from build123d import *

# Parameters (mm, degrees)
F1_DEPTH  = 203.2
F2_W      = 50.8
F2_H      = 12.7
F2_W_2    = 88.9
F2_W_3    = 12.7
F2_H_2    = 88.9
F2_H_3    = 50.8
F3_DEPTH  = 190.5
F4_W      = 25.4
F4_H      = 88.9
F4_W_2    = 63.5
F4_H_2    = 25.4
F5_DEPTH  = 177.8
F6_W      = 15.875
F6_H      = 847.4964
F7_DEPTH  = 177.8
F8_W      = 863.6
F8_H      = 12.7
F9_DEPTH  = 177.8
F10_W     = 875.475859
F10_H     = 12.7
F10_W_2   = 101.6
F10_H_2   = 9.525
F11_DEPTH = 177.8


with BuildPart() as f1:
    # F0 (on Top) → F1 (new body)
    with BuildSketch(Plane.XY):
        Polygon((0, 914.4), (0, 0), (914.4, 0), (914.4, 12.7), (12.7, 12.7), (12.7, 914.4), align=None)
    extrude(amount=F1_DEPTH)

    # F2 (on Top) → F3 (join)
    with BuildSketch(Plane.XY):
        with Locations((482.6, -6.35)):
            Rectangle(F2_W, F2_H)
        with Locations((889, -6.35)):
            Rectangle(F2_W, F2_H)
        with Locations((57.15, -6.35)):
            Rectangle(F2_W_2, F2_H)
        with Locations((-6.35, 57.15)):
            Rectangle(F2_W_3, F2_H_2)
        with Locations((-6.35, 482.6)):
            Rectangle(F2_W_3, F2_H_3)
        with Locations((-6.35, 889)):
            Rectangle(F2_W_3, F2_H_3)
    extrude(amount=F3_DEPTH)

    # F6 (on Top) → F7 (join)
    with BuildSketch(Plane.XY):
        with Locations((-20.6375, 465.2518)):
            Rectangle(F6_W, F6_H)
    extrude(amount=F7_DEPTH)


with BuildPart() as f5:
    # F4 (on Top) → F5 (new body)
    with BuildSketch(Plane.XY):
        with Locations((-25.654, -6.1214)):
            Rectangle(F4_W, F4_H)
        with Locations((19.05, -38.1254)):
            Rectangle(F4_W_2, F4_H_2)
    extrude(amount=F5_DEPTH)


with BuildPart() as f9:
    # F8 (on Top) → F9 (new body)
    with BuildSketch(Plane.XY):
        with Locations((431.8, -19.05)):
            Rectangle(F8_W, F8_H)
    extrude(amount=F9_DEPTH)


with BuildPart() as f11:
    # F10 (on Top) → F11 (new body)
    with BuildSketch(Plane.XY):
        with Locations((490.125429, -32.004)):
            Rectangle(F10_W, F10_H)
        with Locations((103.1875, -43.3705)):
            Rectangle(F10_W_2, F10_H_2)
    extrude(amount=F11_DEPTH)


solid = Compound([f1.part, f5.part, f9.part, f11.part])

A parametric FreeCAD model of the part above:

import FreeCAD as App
import Part
import Sketcher
from FreeCAD import Vector
Q = App.Units.Quantity

doc = App.newDocument("Part")
body = doc.addObject("PartDesign::Body", "Body")

# Sketch on XY plane
sketch1 = body.newObject("Sketcher::SketchObject", "Sketch")
sketch1.AttachmentSupport = (doc.getObject("XY_Plane"), [""])
sketch1.MapMode = "FlatFace"
sketch1.addGeometry([
    Part.LineSegment(Vector(0, 914.4, 0), Vector(0, 0, 0)),  # 0
    Part.LineSegment(Vector(0, 0, 0), Vector(914.4, 0, 0)),  # 1
    Part.LineSegment(Vector(914.4, 0, 0), Vector(914.4, 12.7, 0)),  # 2
    Part.LineSegment(Vector(914.4, 12.7, 0), Vector(12.7, 12.7, 0)),  # 3
    Part.LineSegment(Vector(12.7, 12.7, 0), Vector(12.7, 914.4, 0)),  # 4
    Part.LineSegment(Vector(12.7, 914.4, 0), Vector(0, 914.4, 0)),  # 5
], False)
sketch1.addConstraint([
    Sketcher.Constraint("Coincident", 0, 2, 1, 1),
    Sketcher.Constraint("Coincident", 1, 2, 2, 1),
    Sketcher.Constraint("Coincident", 2, 2, 3, 1),
    Sketcher.Constraint("Coincident", 3, 2, 4, 1),
    Sketcher.Constraint("Coincident", 4, 2, 5, 1),
    Sketcher.Constraint("Coincident", 5, 2, 0, 1),
    Sketcher.Constraint("Vertical", 0),
    Sketcher.Constraint("Horizontal", 1),
    Sketcher.Constraint("Vertical", 2),
    Sketcher.Constraint("Horizontal", 3),
    Sketcher.Constraint("Vertical", 4),
    Sketcher.Constraint("Horizontal", 5),
    Sketcher.Constraint("Coincident", 0, 2, -1, 1),
    Sketcher.Constraint("Equal", 1, 0),
    Sketcher.Constraint("Equal", 5, 2),
    Sketcher.Constraint("DistanceX", 1, 1, 1, 2, Q("36 in")),
    Sketcher.Constraint("DistanceX", 3, 2, 3, 1, Q("35.5 in")),
])
pad1 = body.newObject("PartDesign::Pad", "Pad")
pad1.Profile = sketch1
pad1.Length = Q("8 in")

# Sketch on XY plane
sketch2 = body.newObject("Sketcher::SketchObject", "Sketch001")
sketch2.AttachmentSupport = (doc.getObject("XY_Plane"), [""])
sketch2.MapMode = "FlatFace"
sketch2.addGeometry([
    Part.LineSegment(Vector(457.2, 0, 0), Vector(457.2, -12.7, 0)),  # 0
    Part.LineSegment(Vector(457.2, -12.7, 0), Vector(508, -12.7, 0)),  # 1
    Part.LineSegment(Vector(508, -12.7, 0), Vector(508, 0, 0)),  # 2
    Part.LineSegment(Vector(508, 0, 0), Vector(457.2, 0, 0)),  # 3
    Part.LineSegment(Vector(863.6, 0, 0), Vector(863.6, -12.7, 0)),  # 4
    Part.LineSegment(Vector(863.6, -12.7, 0), Vector(914.4, -12.7, 0)),  # 5
    Part.LineSegment(Vector(914.4, -12.7, 0), Vector(914.4, 0, 0)),  # 6
    Part.LineSegment(Vector(914.4, 0, 0), Vector(863.6, 0, 0)),  # 7
    Part.LineSegment(Vector(12.7, 0, 0), Vector(12.7, -12.7, 0)),  # 8
    Part.LineSegment(Vector(12.7, -12.7, 0), Vector(101.6, -12.7, 0)),  # 9
    Part.LineSegment(Vector(101.6, -12.7, 0), Vector(101.6, 0, 0)),  # 10
    Part.LineSegment(Vector(101.6, 0, 0), Vector(12.7, 0, 0)),  # 11
    Part.LineSegment(Vector(-12.7, 101.6, 0), Vector(-12.7, 12.7, 0)),  # 12
    Part.LineSegment(Vector(-12.7, 12.7, 0), Vector(0, 12.7, 0)),  # 13
    Part.LineSegment(Vector(0, 12.7, 0), Vector(0, 101.6, 0)),  # 14
    Part.LineSegment(Vector(0, 101.6, 0), Vector(-12.7, 101.6, 0)),  # 15
    Part.LineSegment(Vector(-12.7, 508, 0), Vector(-12.7, 457.2, 0)),  # 16
    Part.LineSegment(Vector(-12.7, 457.2, 0), Vector(0, 457.2, 0)),  # 17
    Part.LineSegment(Vector(0, 457.2, 0), Vector(0, 508, 0)),  # 18
    Part.LineSegment(Vector(0, 508, 0), Vector(-12.7, 508, 0)),  # 19
    Part.LineSegment(Vector(-12.7, 914.4, 0), Vector(-12.7, 863.6, 0)),  # 20
    Part.LineSegment(Vector(-12.7, 863.6, 0), Vector(0, 863.6, 0)),  # 21
    Part.LineSegment(Vector(0, 863.6, 0), Vector(0, 914.4, 0)),  # 22
    Part.LineSegment(Vector(0, 914.4, 0), Vector(-12.7, 914.4, 0)),  # 23
], False)
sketch2.addConstraint([
    Sketcher.Constraint("Coincident", 0, 2, 1, 1),
    Sketcher.Constraint("Coincident", 1, 2, 2, 1),
    Sketcher.Constraint("Coincident", 2, 2, 3, 1),
    Sketcher.Constraint("Coincident", 3, 2, 0, 1),
    Sketcher.Constraint("Coincident", 4, 2, 5, 1),
    Sketcher.Constraint("Coincident", 5, 2, 6, 1),
    Sketcher.Constraint("Coincident", 6, 2, 7, 1),
    Sketcher.Constraint("Coincident", 7, 2, 4, 1),
    Sketcher.Constraint("Coincident", 8, 2, 9, 1),
    Sketcher.Constraint("Coincident", 9, 2, 10, 1),
    Sketcher.Constraint("Coincident", 10, 2, 11, 1),
    Sketcher.Constraint("Coincident", 11, 2, 8, 1),
    Sketcher.Constraint("Coincident", 12, 2, 13, 1),
    Sketcher.Constraint("Coincident", 13, 2, 14, 1),
    Sketcher.Constraint("Coincident", 14, 2, 15, 1),
    Sketcher.Constraint("Coincident", 15, 2, 12, 1),
    Sketcher.Constraint("Coincident", 16, 2, 17, 1),
    Sketcher.Constraint("Coincident", 17, 2, 18, 1),
    Sketcher.Constraint("Coincident", 18, 2, 19, 1),
    Sketcher.Constraint("Coincident", 19, 2, 16, 1),
    Sketcher.Constraint("Coincident", 20, 2, 21, 1),
    Sketcher.Constraint("Coincident", 21, 2, 22, 1),
    Sketcher.Constraint("Coincident", 22, 2, 23, 1),
    Sketcher.Constraint("Coincident", 23, 2, 20, 1),
    Sketcher.Constraint("Vertical", 0),
    Sketcher.Constraint("Horizontal", 1),
    Sketcher.Constraint("Vertical", 2),
    Sketcher.Constraint("Horizontal", 3),
    Sketcher.Constraint("Vertical", 4),
    Sketcher.Constraint("Horizontal", 5),
    Sketcher.Constraint("Vertical", 6),
    Sketcher.Constraint("Horizontal", 7),
    Sketcher.Constraint("Vertical", 8),
    Sketcher.Constraint("Horizontal", 9),
    Sketcher.Constraint("Vertical", 10),
    Sketcher.Constraint("Horizontal", 11),
    Sketcher.Constraint("Vertical", 12),
    Sketcher.Constraint("Horizontal", 13),
    Sketcher.Constraint("Vertical", 14),
    Sketcher.Constraint("Horizontal", 15),
    Sketcher.Constraint("Vertical", 16),
    Sketcher.Constraint("Horizontal", 17),
    Sketcher.Constraint("Vertical", 18),
    Sketcher.Constraint("Horizontal", 19),
    Sketcher.Constraint("Vertical", 20),
    Sketcher.Constraint("Horizontal", 21),
    Sketcher.Constraint("Vertical", 22),
    Sketcher.Constraint("Horizontal", 23),
    Sketcher.Constraint("Symmetric", 8, 2, 12, 2, -1, 1),
    Sketcher.Constraint("PointOnObject", 2, 2, -1),
    Sketcher.Constraint("PointOnObject", 6, 2, -1),
    Sketcher.Constraint("PointOnObject", 10, 2, -1),
    Sketcher.Constraint("PointOnObject", 13, 2, -2),
    Sketcher.Constraint("PointOnObject", 17, 2, -2),
    Sketcher.Constraint("PointOnObject", 21, 2, -2),
    Sketcher.Constraint("Horizontal", 1, 2, 4, 2),
    Sketcher.Constraint("Horizontal", 5, 2, 8, 2),
    Sketcher.Constraint("Vertical", 15, 2, 16, 2),
    Sketcher.Constraint("Vertical", 19, 2, 20, 2),
    Sketcher.Constraint("Equal", 3, 5),
    Sketcher.Constraint("Equal", 23, 0),
    Sketcher.Constraint("Equal", 11, 12),
    Sketcher.Constraint("Equal", 7, 16),
    Sketcher.Constraint("Equal", 18, 20),
    Sketcher.Constraint("DistanceX", 1, 1, 1, 2, Q("2 in")),
    Sketcher.Constraint("DistanceX", 9, 1, 9, 2, Q("3.5 in")),
    Sketcher.Constraint("DistanceX", 13, 1, 13, 2, Q("0.5 in")),
    Sketcher.Constraint("DistanceX", -1, 1, 0, 2, Q("18 in")),
    Sketcher.Constraint("DistanceX", -1, 1, 4, 2, Q("34 in")),
    Sketcher.Constraint("DistanceY", -1, 1, 16, 2, Q("18 in")),
    Sketcher.Constraint("DistanceY", -1, 1, 20, 2, Q("34 in")),
])
pad2 = body.newObject("PartDesign::Pad", "Pad001")
pad2.Profile = sketch2
pad2.Length = Q("7.5 in")

# Sketch on XY plane
sketch3 = body.newObject("Sketcher::SketchObject", "Sketch002")
sketch3.AttachmentSupport = (doc.getObject("XY_Plane"), [""])
sketch3.MapMode = "FlatFace"
sketch3.addGeometry([
    Part.LineSegment(Vector(-28.575, 889, 0), Vector(-28.575, 41.5036, 0)),
    Part.LineSegment(Vector(-28.575, 41.5036, 0), Vector(-12.7, 41.5036, 0)),
    Part.LineSegment(Vector(-12.7, 41.5036, 0), Vector(-12.7, 889, 0)),
    Part.LineSegment(Vector(-12.7, 889, 0), Vector(-28.575, 889, 0)),
], False)
sketch3.addConstraint([
    Sketcher.Constraint("Coincident", 0, 2, 1, 1),
    Sketcher.Constraint("Coincident", 1, 2, 2, 1),
    Sketcher.Constraint("Coincident", 2, 2, 3, 1),
    Sketcher.Constraint("Coincident", 3, 2, 0, 1),
    Sketcher.Constraint("Vertical", 0),
    Sketcher.Constraint("Horizontal", 1),
    Sketcher.Constraint("Vertical", 2),
    Sketcher.Constraint("Horizontal", 3),
    Sketcher.Constraint("DistanceY", -1, 1, 2, 2, Q("35 in")),
    Sketcher.Constraint("DistanceX", 1, 2, -1, 1, Q("0.5 in")),
    Sketcher.Constraint("DistanceX", 1, 1, 1, 2, Q("0.625 in")),
    Sketcher.Constraint("DistanceY", 0, 2, 0, 1, Q("33.366 in")),
])
pad3 = body.newObject("PartDesign::Pad", "Pad002")
pad3.Profile = sketch3
pad3.Length = Q("7 in")
body2 = doc.addObject("PartDesign::Body", "Body001")
body2.AllowCompound = True

# Sketch on XY plane
sketch4 = body2.newObject("Sketcher::SketchObject", "Sketch003")
sketch4.AttachmentSupport = (doc.getObject("XY_Plane001"), [""])
sketch4.MapMode = "FlatFace"
sketch4.addGeometry([
    Part.LineSegment(Vector(-38.354, 38.3286, 0), Vector(-38.354, -50.5714, 0)),  # 0
    Part.LineSegment(Vector(-38.354, -50.5714, 0), Vector(-12.954, -50.5714, 0)),  # 1
    Part.LineSegment(Vector(-12.954, -50.5714, 0), Vector(-12.954, 38.3286, 0)),  # 2
    Part.LineSegment(Vector(-12.954, 38.3286, 0), Vector(-38.354, 38.3286, 0)),  # 3
    Part.LineSegment(Vector(-12.7, -25.4254, 0), Vector(-12.7, -50.8254, 0)),  # 4
    Part.LineSegment(Vector(-12.7, -50.8254, 0), Vector(50.8, -50.8254, 0)),  # 5
    Part.LineSegment(Vector(50.8, -50.8254, 0), Vector(50.8, -25.4254, 0)),  # 6
    Part.LineSegment(Vector(50.8, -25.4254, 0), Vector(-12.7, -25.4254, 0)),  # 7
], False)
sketch4.addConstraint([
    Sketcher.Constraint("Coincident", 0, 2, 1, 1),
    Sketcher.Constraint("Coincident", 1, 2, 2, 1),
    Sketcher.Constraint("Coincident", 2, 2, 3, 1),
    Sketcher.Constraint("Coincident", 3, 2, 0, 1),
    Sketcher.Constraint("Coincident", 4, 2, 5, 1),
    Sketcher.Constraint("Coincident", 5, 2, 6, 1),
    Sketcher.Constraint("Coincident", 6, 2, 7, 1),
    Sketcher.Constraint("Coincident", 7, 2, 4, 1),
    Sketcher.Constraint("Vertical", 0),
    Sketcher.Constraint("Horizontal", 1),
    Sketcher.Constraint("Vertical", 2),
    Sketcher.Constraint("Horizontal", 3),
    Sketcher.Constraint("Vertical", 4),
    Sketcher.Constraint("Horizontal", 5),
    Sketcher.Constraint("Vertical", 6),
    Sketcher.Constraint("Horizontal", 7),
    Sketcher.Constraint("Equal", 3, 4),
    Sketcher.Constraint("DistanceX", 1, 1, 1, 2, Q("1 in")),
    Sketcher.Constraint("DistanceX", 5, 1, 5, 2, Q("2.5 in")),
    Sketcher.Constraint("DistanceY", 0, 2, 0, 1, Q("3.5 in")),
    Sketcher.Constraint("DistanceX", -1, 1, 5, 2, Q("2 in")),
    Sketcher.Constraint("DistanceX", 0, 2, -1, 1, Q("1.51 in")),
    Sketcher.Constraint("DistanceY", 4, 2, 1, 2, Q("0.01 in")),
    Sketcher.Constraint("DistanceY", 0, 2, -1, 1, Q("1.991 in")),
])
pad4 = body2.newObject("PartDesign::Pad", "Pad003")
pad4.Profile = sketch4
pad4.Length = Q("7 in")
body3 = doc.addObject("PartDesign::Body", "Body002")

# Sketch on XY plane
sketch5 = body3.newObject("Sketcher::SketchObject", "Sketch004")
sketch5.AttachmentSupport = (doc.getObject("XY_Plane002"), [""])
sketch5.MapMode = "FlatFace"
sketch5.addGeometry([
    Part.LineSegment(Vector(0, -12.7, 0), Vector(0, -25.4, 0)),
    Part.LineSegment(Vector(0, -25.4, 0), Vector(863.6, -25.4, 0)),
    Part.LineSegment(Vector(863.6, -25.4, 0), Vector(863.6, -12.7, 0)),
    Part.LineSegment(Vector(863.6, -12.7, 0), Vector(0, -12.7, 0)),
], False)
sketch5.addConstraint([
    Sketcher.Constraint("Coincident", 0, 2, 1, 1),
    Sketcher.Constraint("Coincident", 1, 2, 2, 1),
    Sketcher.Constraint("Coincident", 2, 2, 3, 1),
    Sketcher.Constraint("Coincident", 3, 2, 0, 1),
    Sketcher.Constraint("Vertical", 0),
    Sketcher.Constraint("Horizontal", 1),
    Sketcher.Constraint("Vertical", 2),
    Sketcher.Constraint("Horizontal", 3),
    Sketcher.Constraint("PointOnObject", 0, 2, -2),
    Sketcher.Constraint("DistanceX", 1, 1, 1, 2, Q("34 in")),
    Sketcher.Constraint("DistanceY", 0, 2, 0, 1, Q("0.5 in")),
    Sketcher.Constraint("DistanceY", 0, 2, -1, 1, Q("1 in")),
])
pad5 = body3.newObject("PartDesign::Pad", "Pad004")
pad5.Profile = sketch5
pad5.Length = Q("7 in")
body4 = doc.addObject("PartDesign::Body", "Body003")
body4.AllowCompound = True

# Sketch on XY plane
sketch6 = body4.newObject("Sketcher::SketchObject", "Sketch005")
sketch6.AttachmentSupport = (doc.getObject("XY_Plane003"), [""])
sketch6.MapMode = "FlatFace"
sketch6.addGeometry([
    Part.LineSegment(Vector(52.387499, -25.654, 0), Vector(52.387499, -38.354, 0)),  # 0
    Part.LineSegment(Vector(52.387499, -38.354, 0), Vector(927.863359, -38.354, 0)),  # 1
    Part.LineSegment(Vector(927.863359, -38.354, 0), Vector(927.863359, -25.654, 0)),  # 2
    Part.LineSegment(Vector(927.863359, -25.654, 0), Vector(52.387499, -25.654, 0)),  # 3
    Part.LineSegment(Vector(52.3875, -38.608, 0), Vector(52.3875, -48.133, 0)),  # 4
    Part.LineSegment(Vector(52.3875, -48.133, 0), Vector(153.9875, -48.133, 0)),  # 5
    Part.LineSegment(Vector(153.9875, -48.133, 0), Vector(153.9875, -38.608, 0)),  # 6
    Part.LineSegment(Vector(153.9875, -38.608, 0), Vector(52.3875, -38.608, 0)),  # 7
], False)
sketch6.addConstraint([
    Sketcher.Constraint("Coincident", 0, 2, 1, 1),
    Sketcher.Constraint("Coincident", 1, 2, 2, 1),
    Sketcher.Constraint("Coincident", 2, 2, 3, 1),
    Sketcher.Constraint("Coincident", 3, 2, 0, 1),
    Sketcher.Constraint("Coincident", 4, 2, 5, 1),
    Sketcher.Constraint("Coincident", 5, 2, 6, 1),
    Sketcher.Constraint("Coincident", 6, 2, 7, 1),
    Sketcher.Constraint("Coincident", 7, 2, 4, 1),
    Sketcher.Constraint("Vertical", 0),
    Sketcher.Constraint("Horizontal", 1),
    Sketcher.Constraint("Vertical", 2),
    Sketcher.Constraint("Horizontal", 3),
    Sketcher.Constraint("Vertical", 4),
    Sketcher.Constraint("Horizontal", 5),
    Sketcher.Constraint("Vertical", 6),
    Sketcher.Constraint("Horizontal", 7),
    Sketcher.Constraint("Vertical", 3, 2, 4, 2),
    Sketcher.Constraint("DistanceX", 5, 1, 5, 2, Q("4 in")),
    Sketcher.Constraint("DistanceY", 0, 2, 0, 1, Q("0.5 in")),
    Sketcher.Constraint("DistanceY", 4, 2, 4, 1, Q("0.375 in")),
    Sketcher.Constraint("DistanceY", 0, 2, -1, 1, Q("1.51 in")),
    Sketcher.Constraint("DistanceY", 6, 2, -1, 1, Q("1.52 in")),
    Sketcher.Constraint("DistanceX", -1, 1, 0, 2, Q("2.0625 in")),
    Sketcher.Constraint("DistanceX", 1, 1, 1, 2, Q("875.475859 mm")),
])
pad6 = body4.newObject("PartDesign::Pad", "Pad005")
pad6.Profile = sketch6
pad6.Length = Q("7 in")

doc.recompute()
